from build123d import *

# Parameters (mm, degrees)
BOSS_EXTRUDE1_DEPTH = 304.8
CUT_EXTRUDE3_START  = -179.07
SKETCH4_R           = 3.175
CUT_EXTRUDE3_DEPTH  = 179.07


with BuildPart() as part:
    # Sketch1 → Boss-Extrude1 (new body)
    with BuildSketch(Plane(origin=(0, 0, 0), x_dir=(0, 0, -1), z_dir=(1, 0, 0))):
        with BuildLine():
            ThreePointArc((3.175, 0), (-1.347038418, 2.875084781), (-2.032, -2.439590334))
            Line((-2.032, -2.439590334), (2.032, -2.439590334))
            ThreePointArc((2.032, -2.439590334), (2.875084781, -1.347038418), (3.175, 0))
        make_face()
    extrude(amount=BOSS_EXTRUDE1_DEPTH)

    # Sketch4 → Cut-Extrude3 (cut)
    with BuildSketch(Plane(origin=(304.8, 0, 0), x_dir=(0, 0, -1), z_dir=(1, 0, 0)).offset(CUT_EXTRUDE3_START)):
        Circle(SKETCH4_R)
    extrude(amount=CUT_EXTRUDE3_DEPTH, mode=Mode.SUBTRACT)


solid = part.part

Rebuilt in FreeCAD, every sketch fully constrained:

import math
import FreeCAD as App
import Part
import Sketcher
from FreeCAD import Vector
Q = App.Units.Quantity

doc = App.newDocument("Part")
params = doc.addObject("Spreadsheet::Sheet", "Params")
for row, (alias, value) in enumerate([
    ("sketch1_radius", "0.125 in"),
    ("sketch1_height", "0.16 in"),
    ("pad1_length", "12 in"),
    ("sketch2_diameter", "0.25 in"),
    ("pocket1_length", "7.05 in"),
], start=1):
    params.set(f"A{row}", alias)
    params.set(f"B{row}", "=" + value)
    params.setAlias(f"B{row}", alias)

body = doc.addObject("PartDesign::Body", "Body")

# Sketch on YZ plane
sketch1 = body.newObject("Sketcher::SketchObject", "Sketch")
sketch1.AttachmentSupport = (doc.getObject("YZ_Plane"), [""])
sketch1.MapMode = "FlatFace"
sketch1.addGeometry([
    Part.ArcOfCircle(Part.Circle(Vector(0, 0, 0), Vector(0, 0, 1), 3.2), math.radians(-90), math.radians(140)),
    Part.LineSegment(Vector(-2.4, 2, 0), Vector(-2.4, -2, 0)),
    Part.ArcOfCircle(Part.Circle(Vector(0, 0, 0), Vector(0, 0, 1), 3.2), math.radians(-140), math.radians(-90)),
], False)
sketch1.addConstraint([
    Sketcher.Constraint("Coincident", 0, 2, 1, 1),
    Sketcher.Constraint("Coincident", 1, 2, 2, 1),
    Sketcher.Constraint("Tangent", 2, 2, 0, 1),
    Sketcher.Constraint("Vertical", 1),
    Sketcher.Constraint("Coincident", 0, 3, -1, 1),
    Sketcher.Constraint("Equal", 0, 2),
    Sketcher.Constraint("PointOnObject", 2, 2, -2),
    Sketcher.Constraint("Radius", 0, Q("0.125 in")),
    Sketcher.Constraint("DistanceY", 1, 2, 1, 1, Q("0.16 in")),
])
sketch1.setExpression("Constraints[7]", "Params.sketch1_radius")
sketch1.setExpression("Constraints[8]", "Params.sketch1_height")
pad1 = body.newObject("PartDesign::Pad", "Pad")
pad1.Profile = sketch1
pad1.setExpression("Length", "Params.pad1_length")

# Sketch on YZ plane
sketch2 = body.newObject("Sketcher::SketchObject", "Sketch001")
sketch2.AttachmentSupport = (doc.getObject("YZ_Plane"), [""])
sketch2.MapMode = "FlatFace"
sketch2.AttachmentOffset = App.Placement(Vector(0, 0, 4.95 * 25.4), App.Rotation())
sketch2.addGeometry(Part.Circle(Vector(0, 0, 0), Vector(0, 0, 1), 3.2), False)
sketch2.addConstraint([
    Sketcher.Constraint("Coincident", 0, 3, -1, 1),
    Sketcher.Constraint("Diameter", 0, Q("0.25 in")),
])
sketch2.setExpression("Constraints[1]", "Params.sketch2_diameter")
pocket1 = body.newObject("PartDesign::Pocket", "Pocket")
pocket1.Profile = sketch2
pocket1.setExpression("Length", "Params.pocket1_length")
pocket1.Reversed = True

doc.recompute()
